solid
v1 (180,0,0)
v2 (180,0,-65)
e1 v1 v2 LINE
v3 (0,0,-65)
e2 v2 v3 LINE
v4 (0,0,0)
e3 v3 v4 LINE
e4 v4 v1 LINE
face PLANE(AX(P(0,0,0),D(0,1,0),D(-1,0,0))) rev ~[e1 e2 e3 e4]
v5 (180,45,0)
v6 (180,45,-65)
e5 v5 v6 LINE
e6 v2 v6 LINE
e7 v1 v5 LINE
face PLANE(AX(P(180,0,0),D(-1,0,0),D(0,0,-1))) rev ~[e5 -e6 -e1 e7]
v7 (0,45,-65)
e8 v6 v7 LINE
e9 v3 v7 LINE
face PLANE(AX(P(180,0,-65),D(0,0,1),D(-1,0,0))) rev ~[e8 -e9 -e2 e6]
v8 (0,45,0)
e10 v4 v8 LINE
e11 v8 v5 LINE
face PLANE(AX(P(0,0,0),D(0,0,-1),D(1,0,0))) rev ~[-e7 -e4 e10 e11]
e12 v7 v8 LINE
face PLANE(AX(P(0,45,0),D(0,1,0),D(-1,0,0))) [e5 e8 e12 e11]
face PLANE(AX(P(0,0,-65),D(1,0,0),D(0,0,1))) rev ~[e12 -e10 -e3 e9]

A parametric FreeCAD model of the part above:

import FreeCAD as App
import Part
import Sketcher


def add_polygon(sketch, points):
    """Adds a closed chain of lines whose ends are joined by coincident constraints."""
    first, n = sketch.GeometryCount, len(points)
    for a, b in zip(points, points[1:] + points[:1]):
        sketch.addGeometry(Part.LineSegment(App.Vector(*a, 0), App.Vector(*b, 0)), False)
    for i in range(n):
        sketch.addConstraint(Sketcher.Constraint("Coincident", first + i, 2, first + (i + 1) % n, 1))

doc = App.newDocument("Part")
body = doc.addObject("PartDesign::Body", "Body")

sketch1 = body.newObject("Sketcher::SketchObject", "Sketch")
sketch1.AttachmentSupport = (doc.getObject("XZ_Plane"), [""])
sketch1.MapMode = "FlatFace"
add_polygon(sketch1, [(0, -65), (0, 0), (180, 0), (180, -65)])
sketch1.addConstraint([
    Sketcher.Constraint("Vertical", 0),
    Sketcher.Constraint("Horizontal", 1),
    Sketcher.Constraint("Vertical", 2),
    Sketcher.Constraint("Horizontal", 3),
    Sketcher.Constraint("Coincident", 0, 2, -1, 1),
    Sketcher.Constraint("DistanceX", 1, 1, 1, 2, 180.0),
    Sketcher.Constraint("DistanceY", 0, 1, 0, 2, 65.0),
])
pad1 = body.newObject("PartDesign::Pad", "Pad")
pad1.Profile = sketch1
pad1.Length = 45
pad1.Reversed = True

doc.recompute()
